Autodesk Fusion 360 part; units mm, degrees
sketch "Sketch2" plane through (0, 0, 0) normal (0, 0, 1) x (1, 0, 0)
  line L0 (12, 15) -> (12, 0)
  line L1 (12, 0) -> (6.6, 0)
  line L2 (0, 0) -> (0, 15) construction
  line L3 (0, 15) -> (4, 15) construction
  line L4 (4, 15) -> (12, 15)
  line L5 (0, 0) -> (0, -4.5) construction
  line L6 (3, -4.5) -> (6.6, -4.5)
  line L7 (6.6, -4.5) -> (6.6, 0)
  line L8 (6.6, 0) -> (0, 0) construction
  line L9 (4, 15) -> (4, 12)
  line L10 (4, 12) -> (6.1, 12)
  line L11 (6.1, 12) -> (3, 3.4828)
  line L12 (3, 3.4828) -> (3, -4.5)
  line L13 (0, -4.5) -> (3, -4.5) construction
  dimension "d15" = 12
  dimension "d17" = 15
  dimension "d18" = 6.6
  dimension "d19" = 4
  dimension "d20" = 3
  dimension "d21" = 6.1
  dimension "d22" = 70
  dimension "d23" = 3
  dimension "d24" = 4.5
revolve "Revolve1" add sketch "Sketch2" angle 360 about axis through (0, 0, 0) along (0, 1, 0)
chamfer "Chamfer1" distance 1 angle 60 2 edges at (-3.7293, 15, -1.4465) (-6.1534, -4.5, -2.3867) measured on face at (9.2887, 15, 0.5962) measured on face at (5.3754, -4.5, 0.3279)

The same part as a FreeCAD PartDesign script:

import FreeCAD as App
import Part
import Sketcher

V = App.Vector
Q = App.Units.Quantity


def edges_at(feature, points):
    """Names of the edges that pass closest to the given points."""
    edges = feature.Shape.Edges
    near = lambda p: min(range(len(edges)), key=lambda i: edges[i].distToShape(Part.Vertex(*p))[0])
    return sorted({f"Edge{near(p) + 1}" for p in points})

doc = App.newDocument("Part")
body = doc.addObject("PartDesign::Body", "Body")

sketch1 = body.newObject("Sketcher::SketchObject", "Sketch")
sketch1.AttachmentSupport = (doc.getObject("XY_Plane"), [""])
sketch1.MapMode = "FlatFace"
sketch1.addGeometry([
    Part.LineSegment(V(12, 0, 0), V(12, 15, 0)),
    Part.LineSegment(V(12, 15, 0), V(4, 15, 0)),
    Part.LineSegment(V(4, 15, 0), V(4, 12, 0)),
    Part.LineSegment(V(4, 12, 0), V(6.1, 12, 0)),
    Part.LineSegment(V(6.1, 12, 0), V(3, 3.5, 0)),
    Part.LineSegment(V(3, 3.5, 0), V(3, -4.5, 0)),
    Part.LineSegment(V(3, -4.5, 0), V(6.6, -4.5, 0)),
    Part.LineSegment(V(6.6, -4.5, 0), V(6.6, 0, 0)),
    Part.LineSegment(V(6.6, 0, 0), V(12, 0, 0)),
], False)
sketch1.addConstraint([
    Sketcher.Constraint("Coincident", 0, 2, 1, 1),
    Sketcher.Constraint("Coincident", 1, 2, 2, 1),
    Sketcher.Constraint("Coincident", 2, 2, 3, 1),
    Sketcher.Constraint("Coincident", 3, 2, 4, 1),
    Sketcher.Constraint("Coincident", 4, 2, 5, 1),
    Sketcher.Constraint("Coincident", 5, 2, 6, 1),
    Sketcher.Constraint("Coincident", 6, 2, 7, 1),
    Sketcher.Constraint("Coincident", 7, 2, 8, 1),
    Sketcher.Constraint("Coincident", 8, 2, 0, 1),
    Sketcher.Constraint("Vertical", 0),
    Sketcher.Constraint("Horizontal", 1),
    Sketcher.Constraint("Vertical", 2),
    Sketcher.Constraint("Horizontal", 3),
    Sketcher.Constraint("Vertical", 5),
    Sketcher.Constraint("Horizontal", 6),
    Sketcher.Constraint("Vertical", 7),
    Sketcher.Constraint("Horizontal", 8),
    Sketcher.Constraint("PointOnObject", 7, 2, -1),
    Sketcher.Constraint("DistanceY", 0, 1, 0, 2, 15.0),
    Sketcher.Constraint("DistanceY", 2, 2, 2, 1, 3.0),
    Sketcher.Constraint("DistanceY", 7, 1, 7, 2, 4.5),
    Sketcher.Constraint("DistanceX", -1, 1, 0, 2, 12.0),
    Sketcher.Constraint("DistanceX", -1, 1, 1, 2, 4.0),
    Sketcher.Constraint("DistanceX", -1, 1, 4, 2, 3.0),
    Sketcher.Constraint("DistanceX", -1, 1, 3, 2, 6.1),
    Sketcher.Constraint("DistanceX", -1, 1, 6, 2, 6.6),
    Sketcher.Constraint("Angle", 4, Q("-110 deg")),
])
revolution = body.newObject("PartDesign::Revolution", "Revolution")
revolution.Profile = sketch1
revolution.ReferenceAxis = (sketch1, ["V_Axis"])
revolution.Angle = 360
doc.recompute()

chamfer = body.newObject("PartDesign::Chamfer", "Chamfer")
chamfer.Base = (revolution, edges_at(revolution, [(-3.729, 15, -1.446), (-6.153, -4.5, -2.387)]))
chamfer.ChamferType = "Distance and Angle"
chamfer.Size = 1
chamfer.Angle = 60

doc.recompute()
